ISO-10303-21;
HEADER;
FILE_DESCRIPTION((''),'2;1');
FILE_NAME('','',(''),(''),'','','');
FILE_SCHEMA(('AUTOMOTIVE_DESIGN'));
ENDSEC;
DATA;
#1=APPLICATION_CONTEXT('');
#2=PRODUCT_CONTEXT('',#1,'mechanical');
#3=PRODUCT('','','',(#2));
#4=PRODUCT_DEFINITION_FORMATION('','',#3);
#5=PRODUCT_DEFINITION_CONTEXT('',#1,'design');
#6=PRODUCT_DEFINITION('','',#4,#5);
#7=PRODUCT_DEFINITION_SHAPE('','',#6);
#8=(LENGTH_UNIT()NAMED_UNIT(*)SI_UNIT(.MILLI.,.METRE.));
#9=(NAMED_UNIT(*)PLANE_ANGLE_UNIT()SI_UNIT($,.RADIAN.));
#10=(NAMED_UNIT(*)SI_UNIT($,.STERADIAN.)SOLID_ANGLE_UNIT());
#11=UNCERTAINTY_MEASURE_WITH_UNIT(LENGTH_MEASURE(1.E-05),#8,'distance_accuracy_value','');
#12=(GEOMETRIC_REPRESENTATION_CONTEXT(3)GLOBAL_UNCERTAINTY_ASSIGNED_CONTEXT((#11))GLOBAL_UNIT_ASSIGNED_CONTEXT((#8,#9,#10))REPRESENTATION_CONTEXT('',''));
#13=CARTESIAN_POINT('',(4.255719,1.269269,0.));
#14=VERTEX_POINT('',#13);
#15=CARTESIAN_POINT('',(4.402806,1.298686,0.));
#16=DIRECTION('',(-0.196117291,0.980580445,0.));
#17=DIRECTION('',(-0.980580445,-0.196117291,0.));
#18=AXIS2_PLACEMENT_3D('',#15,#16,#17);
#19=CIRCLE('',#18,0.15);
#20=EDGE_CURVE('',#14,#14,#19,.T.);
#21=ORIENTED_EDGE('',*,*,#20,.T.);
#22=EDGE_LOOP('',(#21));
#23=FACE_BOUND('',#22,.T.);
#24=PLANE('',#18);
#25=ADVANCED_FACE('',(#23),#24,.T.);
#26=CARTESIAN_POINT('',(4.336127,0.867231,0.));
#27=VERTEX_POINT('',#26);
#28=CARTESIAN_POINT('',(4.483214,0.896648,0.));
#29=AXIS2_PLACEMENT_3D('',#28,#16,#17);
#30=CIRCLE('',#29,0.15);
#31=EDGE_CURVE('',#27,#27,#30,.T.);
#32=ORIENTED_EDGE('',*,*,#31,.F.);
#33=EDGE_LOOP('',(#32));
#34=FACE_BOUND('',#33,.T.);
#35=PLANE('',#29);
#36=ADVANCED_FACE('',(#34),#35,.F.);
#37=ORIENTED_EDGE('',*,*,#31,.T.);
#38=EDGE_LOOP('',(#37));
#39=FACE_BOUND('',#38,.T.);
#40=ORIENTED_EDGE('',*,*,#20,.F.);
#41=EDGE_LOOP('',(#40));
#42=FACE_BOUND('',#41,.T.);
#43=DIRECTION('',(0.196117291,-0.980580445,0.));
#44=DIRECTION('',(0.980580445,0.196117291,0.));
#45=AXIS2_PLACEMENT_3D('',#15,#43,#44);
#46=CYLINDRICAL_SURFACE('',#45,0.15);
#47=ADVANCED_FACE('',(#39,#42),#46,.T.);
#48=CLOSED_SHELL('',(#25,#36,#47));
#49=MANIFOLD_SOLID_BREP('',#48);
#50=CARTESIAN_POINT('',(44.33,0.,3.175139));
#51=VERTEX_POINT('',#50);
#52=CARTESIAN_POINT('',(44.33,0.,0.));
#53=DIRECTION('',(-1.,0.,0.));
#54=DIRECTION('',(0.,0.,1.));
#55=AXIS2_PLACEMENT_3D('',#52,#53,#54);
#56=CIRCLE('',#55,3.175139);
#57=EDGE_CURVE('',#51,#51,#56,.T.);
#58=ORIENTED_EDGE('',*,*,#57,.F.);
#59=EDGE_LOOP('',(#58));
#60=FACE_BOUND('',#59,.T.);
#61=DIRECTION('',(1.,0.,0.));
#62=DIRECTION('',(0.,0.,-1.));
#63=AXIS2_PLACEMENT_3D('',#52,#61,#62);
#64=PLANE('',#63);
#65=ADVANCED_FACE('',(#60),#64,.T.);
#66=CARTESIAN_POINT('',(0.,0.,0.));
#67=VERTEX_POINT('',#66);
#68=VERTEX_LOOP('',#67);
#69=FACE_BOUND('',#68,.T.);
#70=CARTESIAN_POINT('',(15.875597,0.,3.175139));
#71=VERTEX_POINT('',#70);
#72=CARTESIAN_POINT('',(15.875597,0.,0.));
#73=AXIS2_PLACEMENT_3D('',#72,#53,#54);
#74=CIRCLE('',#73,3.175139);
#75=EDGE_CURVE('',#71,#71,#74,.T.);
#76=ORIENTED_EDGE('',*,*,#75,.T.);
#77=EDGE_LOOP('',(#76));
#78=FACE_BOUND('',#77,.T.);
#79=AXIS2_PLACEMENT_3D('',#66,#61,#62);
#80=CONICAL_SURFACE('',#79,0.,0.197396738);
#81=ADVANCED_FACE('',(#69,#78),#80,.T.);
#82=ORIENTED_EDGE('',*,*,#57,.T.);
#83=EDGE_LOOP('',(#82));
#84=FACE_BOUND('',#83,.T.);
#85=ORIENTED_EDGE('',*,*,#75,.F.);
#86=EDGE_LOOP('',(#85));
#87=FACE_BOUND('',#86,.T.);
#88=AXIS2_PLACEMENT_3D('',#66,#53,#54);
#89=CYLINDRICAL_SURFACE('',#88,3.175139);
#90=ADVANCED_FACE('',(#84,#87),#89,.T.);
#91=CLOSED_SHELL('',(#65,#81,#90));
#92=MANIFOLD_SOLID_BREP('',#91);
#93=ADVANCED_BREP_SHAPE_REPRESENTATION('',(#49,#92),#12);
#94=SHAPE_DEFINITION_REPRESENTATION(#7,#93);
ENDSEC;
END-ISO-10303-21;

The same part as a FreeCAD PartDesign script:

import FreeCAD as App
import Part
import Sketcher

V = App.Vector
Q = App.Units.Quantity


def add_polygon(sketch, points):
    """Adds a closed chain of lines whose ends are joined by coincident constraints."""
    first, n = sketch.GeometryCount, len(points)
    for a, b in zip(points, points[1:] + points[:1]):
        sketch.addGeometry(Part.LineSegment(App.Vector(*a, 0), App.Vector(*b, 0)), False)
    for i in range(n):
        sketch.addConstraint(Sketcher.Constraint("Coincident", first + i, 2, first + (i + 1) % n, 1))

doc = App.newDocument("Part")
body = doc.addObject("PartDesign::Body", "Body")

sketch1 = body.newObject("Sketcher::SketchObject", "Sketch")
sketch1.Placement = App.Placement(V(0, 0, 0), App.Rotation(V(0.980580445, 0.196117291, 0), V(0, 0, -1.000000001), V(-0.196117291, 0.980580445, 0), "ZXY"))
sketch1.addGeometry(Part.Circle(V(4.572, 0, 0), V(0, 0, 1), 0.15), False)
sketch1.addConstraint([
    Sketcher.Constraint("PointOnObject", 0, 3, -1),
    Sketcher.Constraint("Diameter", 0, 0.3),
    Sketcher.Constraint("DistanceX", -1, 1, 0, 3, 4.572),
])
pad1 = body.newObject("PartDesign::Pad", "Pad")
pad1.Profile = sketch1
pad1.Length = 0.41
body2 = doc.addObject("PartDesign::Body", "Body001")

sketch2 = body2.newObject("Sketcher::SketchObject", "Sketch001")
sketch2.AttachmentSupport = (doc.getObject("XY_Plane001"), [""])
sketch2.MapMode = "FlatFace"
add_polygon(sketch2, [(44.33, 0), (44.33, 3.175139), (15.875597, 3.175139), (0, 0)])
sketch2.addConstraint([
    Sketcher.Constraint("Vertical", 0),
    Sketcher.Constraint("Horizontal", 1),
    Sketcher.Constraint("Horizontal", 3),
    Sketcher.Constraint("Coincident", 2, 2, -1, 1),
    Sketcher.Constraint("DistanceX", 3, 1, 3, 2, 44.33),
    Sketcher.Constraint("Angle", 2, Q("-168.69 deg")),
    Sketcher.Constraint("Distance", 2, 16.19),
])
revolution = body2.newObject("PartDesign::Revolution", "Revolution")
revolution.Profile = sketch2
revolution.ReferenceAxis = (sketch2, ["H_Axis"])
revolution.Angle = 360

doc.recompute()
